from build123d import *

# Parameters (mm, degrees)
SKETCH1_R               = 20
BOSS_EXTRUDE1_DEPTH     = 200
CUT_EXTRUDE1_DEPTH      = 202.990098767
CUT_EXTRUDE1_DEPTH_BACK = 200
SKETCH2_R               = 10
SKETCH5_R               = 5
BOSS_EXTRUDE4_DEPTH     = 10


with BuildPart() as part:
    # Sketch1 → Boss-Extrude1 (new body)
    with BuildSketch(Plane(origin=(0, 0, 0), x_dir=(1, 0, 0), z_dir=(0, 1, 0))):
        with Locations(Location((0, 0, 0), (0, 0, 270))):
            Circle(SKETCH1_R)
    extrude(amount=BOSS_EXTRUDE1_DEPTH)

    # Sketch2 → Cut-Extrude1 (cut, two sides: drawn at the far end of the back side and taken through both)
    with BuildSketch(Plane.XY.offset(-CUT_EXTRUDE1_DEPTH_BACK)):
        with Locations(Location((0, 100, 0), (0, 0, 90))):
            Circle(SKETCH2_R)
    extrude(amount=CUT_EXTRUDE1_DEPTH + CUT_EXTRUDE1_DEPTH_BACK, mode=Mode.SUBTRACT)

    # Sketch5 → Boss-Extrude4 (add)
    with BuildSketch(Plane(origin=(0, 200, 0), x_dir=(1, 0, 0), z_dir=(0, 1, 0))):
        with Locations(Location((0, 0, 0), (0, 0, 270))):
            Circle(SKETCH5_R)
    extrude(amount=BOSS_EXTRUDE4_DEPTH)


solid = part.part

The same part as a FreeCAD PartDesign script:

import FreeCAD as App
import Part
import Sketcher

doc = App.newDocument("Part")
params = doc.addObject("Spreadsheet::Sheet", "Params")
for row, (alias, value) in enumerate([
    ("sketch1_diameter", "40 mm"),
    ("pad1_length", "200 mm"),
    ("sketch2_diameter", "20 mm"),
    ("sketch3_diameter", "10 mm"),
    ("pad2_length", "10 mm"),
], start=1):
    params.set(f"A{row}", alias)
    params.set(f"B{row}", "=" + value)
    params.setAlias(f"B{row}", alias)

body = doc.addObject("PartDesign::Body", "Body")

# Sketch on XZ plane
sketch1 = body.newObject("Sketcher::SketchObject", "Sketch")
sketch1.AttachmentSupport = (doc.getObject("XZ_Plane"), [""])
sketch1.MapMode = "FlatFace"
sketch1.addGeometry(Part.Circle(App.Vector(0, 0, 0), App.Vector(0, 0, 1), 20), False)
sketch1.addConstraint(Sketcher.Constraint("Coincident", 0, 3, -1, 1))
sketch1.addConstraint(Sketcher.Constraint("Diameter", 0, 40.0))
sketch1.setExpression("Constraints[1]", "Params.sketch1_diameter")
pad1 = body.newObject("PartDesign::Pad", "Pad")
pad1.Profile = sketch1
pad1.setExpression("Length", "Params.pad1_length")
pad1.Reversed = True

# Sketch on XY plane
sketch2 = body.newObject("Sketcher::SketchObject", "Sketch001")
sketch2.AttachmentSupport = (doc.getObject("XY_Plane"), [""])
sketch2.MapMode = "FlatFace"
sketch2.addGeometry(Part.Circle(App.Vector(0, 100, 0), App.Vector(0, 0, 1), 10), False)
sketch2.addConstraint(Sketcher.Constraint("PointOnObject", 0, 3, -2))
sketch2.addConstraint(Sketcher.Constraint("Diameter", 0, 20.0))
sketch2.addConstraint(Sketcher.Constraint("DistanceY", -1, 1, 0, 3, 100.0))
sketch2.setExpression("Constraints[1]", "Params.sketch2_diameter")
pocket1 = body.newObject("PartDesign::Pocket", "Pocket")
pocket1.Profile = sketch2
pocket1.Type = "ThroughAll"
pocket1.Midplane = True

# Sketch on XZ plane
sketch3 = body.newObject("Sketcher::SketchObject", "Sketch002")
sketch3.AttachmentSupport = (doc.getObject("XZ_Plane"), [""])
sketch3.MapMode = "FlatFace"
sketch3.AttachmentOffset = App.Placement(App.Vector(0, 0, -200), App.Rotation())
sketch3.addGeometry(Part.Circle(App.Vector(0, 0, 0), App.Vector(0, 0, 1), 5), False)
sketch3.addConstraint(Sketcher.Constraint("Coincident", 0, 3, -1, 1))
sketch3.addConstraint(Sketcher.Constraint("Diameter", 0, 10.0))
sketch3.setExpression("Constraints[1]", "Params.sketch3_diameter")
pad2 = body.newObject("PartDesign::Pad", "Pad001")
pad2.Profile = sketch3
pad2.setExpression("Length", "Params.pad2_length")
pad2.Reversed = True

doc.recompute()
